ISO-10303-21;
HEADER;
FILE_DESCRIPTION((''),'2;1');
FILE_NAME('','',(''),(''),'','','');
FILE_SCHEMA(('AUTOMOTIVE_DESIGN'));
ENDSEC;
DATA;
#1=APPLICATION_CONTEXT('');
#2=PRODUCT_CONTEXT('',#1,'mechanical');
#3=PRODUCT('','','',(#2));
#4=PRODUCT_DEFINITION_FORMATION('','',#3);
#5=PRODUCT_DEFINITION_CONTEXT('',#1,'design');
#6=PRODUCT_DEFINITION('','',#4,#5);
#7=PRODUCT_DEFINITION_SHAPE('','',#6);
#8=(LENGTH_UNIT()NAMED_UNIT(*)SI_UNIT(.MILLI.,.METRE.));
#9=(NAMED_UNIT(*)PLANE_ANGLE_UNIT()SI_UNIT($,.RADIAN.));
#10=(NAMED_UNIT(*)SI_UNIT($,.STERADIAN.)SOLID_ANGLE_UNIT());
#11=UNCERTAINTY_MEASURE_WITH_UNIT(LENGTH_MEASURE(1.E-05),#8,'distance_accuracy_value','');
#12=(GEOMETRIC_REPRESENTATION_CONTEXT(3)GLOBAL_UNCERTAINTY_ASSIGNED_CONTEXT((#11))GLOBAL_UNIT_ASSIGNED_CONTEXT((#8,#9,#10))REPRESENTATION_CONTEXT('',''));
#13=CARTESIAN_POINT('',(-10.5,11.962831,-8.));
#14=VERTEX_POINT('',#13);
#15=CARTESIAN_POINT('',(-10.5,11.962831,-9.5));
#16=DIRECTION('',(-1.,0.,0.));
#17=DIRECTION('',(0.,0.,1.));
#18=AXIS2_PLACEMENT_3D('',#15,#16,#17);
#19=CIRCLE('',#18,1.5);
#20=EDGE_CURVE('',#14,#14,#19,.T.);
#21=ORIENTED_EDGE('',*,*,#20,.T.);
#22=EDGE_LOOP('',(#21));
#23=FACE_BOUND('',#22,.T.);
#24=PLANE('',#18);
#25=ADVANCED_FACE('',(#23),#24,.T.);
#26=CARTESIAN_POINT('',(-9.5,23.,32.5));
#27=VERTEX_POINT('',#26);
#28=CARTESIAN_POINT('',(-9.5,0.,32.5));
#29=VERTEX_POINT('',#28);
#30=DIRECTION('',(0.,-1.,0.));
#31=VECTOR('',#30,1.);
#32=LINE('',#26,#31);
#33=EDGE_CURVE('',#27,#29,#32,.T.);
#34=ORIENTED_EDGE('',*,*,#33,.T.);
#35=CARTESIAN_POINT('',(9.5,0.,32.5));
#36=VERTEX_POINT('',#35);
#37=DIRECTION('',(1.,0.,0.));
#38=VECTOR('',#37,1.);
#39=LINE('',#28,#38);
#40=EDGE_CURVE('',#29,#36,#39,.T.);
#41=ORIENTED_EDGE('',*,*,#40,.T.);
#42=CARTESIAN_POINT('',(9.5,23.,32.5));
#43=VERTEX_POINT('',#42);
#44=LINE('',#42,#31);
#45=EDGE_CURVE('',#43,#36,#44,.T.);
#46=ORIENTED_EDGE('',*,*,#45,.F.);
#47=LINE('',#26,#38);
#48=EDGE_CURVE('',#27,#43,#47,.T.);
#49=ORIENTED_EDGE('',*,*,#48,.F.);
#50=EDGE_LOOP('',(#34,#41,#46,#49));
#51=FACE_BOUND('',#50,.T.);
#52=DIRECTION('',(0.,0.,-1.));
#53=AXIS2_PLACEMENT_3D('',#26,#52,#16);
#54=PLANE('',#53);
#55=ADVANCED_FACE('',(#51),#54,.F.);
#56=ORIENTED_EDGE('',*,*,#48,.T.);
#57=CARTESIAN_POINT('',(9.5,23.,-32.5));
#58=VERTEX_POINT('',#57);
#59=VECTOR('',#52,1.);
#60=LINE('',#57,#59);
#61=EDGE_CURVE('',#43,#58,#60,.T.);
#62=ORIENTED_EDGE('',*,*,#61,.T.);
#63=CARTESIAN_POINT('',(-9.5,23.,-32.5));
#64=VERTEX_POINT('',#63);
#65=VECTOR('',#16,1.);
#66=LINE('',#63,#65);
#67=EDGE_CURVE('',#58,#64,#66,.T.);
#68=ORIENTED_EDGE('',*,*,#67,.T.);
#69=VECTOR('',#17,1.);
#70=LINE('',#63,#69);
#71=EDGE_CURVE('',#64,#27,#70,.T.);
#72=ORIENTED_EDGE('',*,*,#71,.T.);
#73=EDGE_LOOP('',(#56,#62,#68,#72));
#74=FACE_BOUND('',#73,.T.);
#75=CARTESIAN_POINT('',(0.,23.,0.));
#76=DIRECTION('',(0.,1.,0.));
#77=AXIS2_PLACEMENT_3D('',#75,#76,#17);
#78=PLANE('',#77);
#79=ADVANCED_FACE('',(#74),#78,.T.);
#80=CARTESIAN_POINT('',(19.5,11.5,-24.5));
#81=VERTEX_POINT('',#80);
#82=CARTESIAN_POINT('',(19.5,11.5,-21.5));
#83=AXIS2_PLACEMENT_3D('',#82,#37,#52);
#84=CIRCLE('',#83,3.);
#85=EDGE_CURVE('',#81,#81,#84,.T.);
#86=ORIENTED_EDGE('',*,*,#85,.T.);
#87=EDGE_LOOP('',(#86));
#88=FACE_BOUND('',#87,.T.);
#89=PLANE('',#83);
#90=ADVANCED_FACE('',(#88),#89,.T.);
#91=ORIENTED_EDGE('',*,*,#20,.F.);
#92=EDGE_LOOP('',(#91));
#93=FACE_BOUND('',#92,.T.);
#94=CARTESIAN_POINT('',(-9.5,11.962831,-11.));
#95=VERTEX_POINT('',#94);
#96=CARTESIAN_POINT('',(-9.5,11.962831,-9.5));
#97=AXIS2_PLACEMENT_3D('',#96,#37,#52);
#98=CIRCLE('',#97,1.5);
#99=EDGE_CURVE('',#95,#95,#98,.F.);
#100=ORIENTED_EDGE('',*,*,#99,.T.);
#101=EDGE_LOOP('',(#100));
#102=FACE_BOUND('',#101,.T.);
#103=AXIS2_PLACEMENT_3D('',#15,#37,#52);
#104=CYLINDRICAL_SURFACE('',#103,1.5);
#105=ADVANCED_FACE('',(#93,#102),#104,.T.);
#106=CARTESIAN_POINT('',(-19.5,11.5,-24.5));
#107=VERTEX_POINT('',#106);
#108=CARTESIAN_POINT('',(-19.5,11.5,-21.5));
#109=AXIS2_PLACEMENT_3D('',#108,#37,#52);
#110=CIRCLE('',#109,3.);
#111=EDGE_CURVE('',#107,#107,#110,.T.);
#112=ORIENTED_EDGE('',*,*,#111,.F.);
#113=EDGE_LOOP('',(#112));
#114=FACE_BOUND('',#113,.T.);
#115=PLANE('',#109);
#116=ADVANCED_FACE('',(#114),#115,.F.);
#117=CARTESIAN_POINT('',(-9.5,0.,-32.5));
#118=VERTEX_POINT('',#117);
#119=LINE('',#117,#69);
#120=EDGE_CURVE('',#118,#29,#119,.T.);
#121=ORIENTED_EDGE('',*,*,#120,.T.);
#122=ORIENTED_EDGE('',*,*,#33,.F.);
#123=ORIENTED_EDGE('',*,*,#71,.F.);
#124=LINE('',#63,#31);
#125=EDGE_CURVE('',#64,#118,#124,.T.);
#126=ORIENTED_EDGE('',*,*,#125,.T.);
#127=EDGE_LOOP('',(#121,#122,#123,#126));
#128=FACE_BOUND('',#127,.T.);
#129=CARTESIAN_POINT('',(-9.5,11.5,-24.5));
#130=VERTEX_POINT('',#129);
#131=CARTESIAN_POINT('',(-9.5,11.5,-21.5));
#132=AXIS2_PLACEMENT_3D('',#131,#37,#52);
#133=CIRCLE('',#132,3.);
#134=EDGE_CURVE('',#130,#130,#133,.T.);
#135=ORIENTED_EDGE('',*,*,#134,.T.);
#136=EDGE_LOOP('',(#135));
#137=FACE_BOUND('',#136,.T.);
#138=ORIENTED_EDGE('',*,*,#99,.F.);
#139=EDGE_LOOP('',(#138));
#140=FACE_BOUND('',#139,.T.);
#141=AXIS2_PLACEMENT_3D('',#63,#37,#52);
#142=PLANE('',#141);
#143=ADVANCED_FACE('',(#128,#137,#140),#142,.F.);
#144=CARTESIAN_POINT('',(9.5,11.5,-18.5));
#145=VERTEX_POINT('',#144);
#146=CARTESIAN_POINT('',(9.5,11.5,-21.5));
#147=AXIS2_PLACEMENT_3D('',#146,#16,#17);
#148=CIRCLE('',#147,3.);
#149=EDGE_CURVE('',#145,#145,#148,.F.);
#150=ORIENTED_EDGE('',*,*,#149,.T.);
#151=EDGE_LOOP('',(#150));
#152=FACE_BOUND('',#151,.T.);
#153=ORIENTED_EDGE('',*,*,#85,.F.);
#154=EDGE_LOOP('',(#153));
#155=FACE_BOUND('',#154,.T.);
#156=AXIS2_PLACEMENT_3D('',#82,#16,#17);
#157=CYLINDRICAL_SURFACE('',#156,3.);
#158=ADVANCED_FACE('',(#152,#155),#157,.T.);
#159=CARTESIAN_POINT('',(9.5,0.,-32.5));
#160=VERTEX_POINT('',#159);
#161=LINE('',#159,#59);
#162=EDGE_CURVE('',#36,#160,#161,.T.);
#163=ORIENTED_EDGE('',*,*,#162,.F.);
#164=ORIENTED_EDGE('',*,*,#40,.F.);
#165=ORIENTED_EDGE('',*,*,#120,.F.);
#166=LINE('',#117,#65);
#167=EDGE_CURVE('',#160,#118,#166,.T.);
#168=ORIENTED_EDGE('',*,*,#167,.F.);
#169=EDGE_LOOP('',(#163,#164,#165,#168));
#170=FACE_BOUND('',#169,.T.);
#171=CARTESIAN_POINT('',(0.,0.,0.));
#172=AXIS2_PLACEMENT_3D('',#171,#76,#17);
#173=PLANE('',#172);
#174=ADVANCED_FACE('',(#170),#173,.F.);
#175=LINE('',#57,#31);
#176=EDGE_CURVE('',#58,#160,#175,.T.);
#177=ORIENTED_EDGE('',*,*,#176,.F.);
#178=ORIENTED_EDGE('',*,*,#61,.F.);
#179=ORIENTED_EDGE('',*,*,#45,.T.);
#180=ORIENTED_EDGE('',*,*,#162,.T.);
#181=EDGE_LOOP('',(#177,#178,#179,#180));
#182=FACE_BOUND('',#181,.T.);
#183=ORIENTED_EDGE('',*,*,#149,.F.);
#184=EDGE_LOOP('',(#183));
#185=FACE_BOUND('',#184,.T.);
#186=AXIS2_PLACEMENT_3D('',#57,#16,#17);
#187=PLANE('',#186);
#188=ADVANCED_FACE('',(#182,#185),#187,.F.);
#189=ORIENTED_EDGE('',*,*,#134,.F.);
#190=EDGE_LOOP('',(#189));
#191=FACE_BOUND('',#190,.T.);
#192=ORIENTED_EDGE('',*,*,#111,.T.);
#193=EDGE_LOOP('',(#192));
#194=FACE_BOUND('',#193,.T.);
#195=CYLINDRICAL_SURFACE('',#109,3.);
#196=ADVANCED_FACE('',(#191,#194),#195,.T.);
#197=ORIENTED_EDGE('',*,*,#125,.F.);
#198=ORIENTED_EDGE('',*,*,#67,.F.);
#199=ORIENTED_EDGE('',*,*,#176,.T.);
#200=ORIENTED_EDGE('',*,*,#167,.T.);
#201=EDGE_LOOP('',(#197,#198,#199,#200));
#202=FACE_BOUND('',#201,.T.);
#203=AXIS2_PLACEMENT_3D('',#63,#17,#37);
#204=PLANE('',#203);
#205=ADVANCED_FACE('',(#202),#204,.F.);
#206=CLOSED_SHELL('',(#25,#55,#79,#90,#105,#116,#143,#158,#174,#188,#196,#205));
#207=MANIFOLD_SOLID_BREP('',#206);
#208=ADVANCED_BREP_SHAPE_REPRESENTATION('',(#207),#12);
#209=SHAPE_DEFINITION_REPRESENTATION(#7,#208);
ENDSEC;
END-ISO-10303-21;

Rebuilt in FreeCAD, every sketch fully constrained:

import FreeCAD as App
import Part
import Sketcher
from FreeCAD import Vector
Q = App.Units.Quantity

doc = App.newDocument("Part")
body = doc.addObject("PartDesign::Body", "Body")

sketch1 = body.newObject("Sketcher::SketchObject", "Sketch")
sketch1.AttachmentSupport = (doc.getObject("XZ_Plane"), [""])
sketch1.MapMode = "FlatFace"
sketch1.addGeometry(Part.LineSegment(Vector(-10, -32, 0), Vector(-10, 32, 0)), False)
sketch1.addGeometry(Part.LineSegment(Vector(-10, 32, 0), Vector(10, 32, 0)), False)
sketch1.addGeometry(Part.LineSegment(Vector(10, 32, 0), Vector(10, -32, 0)), False)
sketch1.addGeometry(Part.LineSegment(Vector(10, -32, 0), Vector(-10, -32, 0)), False)
sketch1.addConstraint(Sketcher.Constraint("Coincident", 0, 2, 1, 1))
sketch1.addConstraint(Sketcher.Constraint("Coincident", 1, 2, 2, 1))
sketch1.addConstraint(Sketcher.Constraint("Coincident", 2, 2, 3, 1))
sketch1.addConstraint(Sketcher.Constraint("Coincident", 3, 2, 0, 1))
sketch1.addConstraint(Sketcher.Constraint("Vertical", 0))
sketch1.addConstraint(Sketcher.Constraint("Horizontal", 1))
sketch1.addConstraint(Sketcher.Constraint("Vertical", 2))
sketch1.addConstraint(Sketcher.Constraint("Horizontal", 3))
sketch1.addConstraint(Sketcher.Constraint("Symmetric", 0, 2, 2, 2, -1, 1))
sketch1.addConstraint(Sketcher.Constraint("DistanceX", 1, 1, 1, 2, Q("19 mm")))
sketch1.addConstraint(Sketcher.Constraint("DistanceY", 0, 1, 0, 2, Q("65 mm")))
pad1 = body.newObject("PartDesign::Pad", "Pad")
pad1.Profile = sketch1
pad1.Length = 23
pad1.Reversed = True

sketch2 = body.newObject("Sketcher::SketchObject", "Sketch001")
sketch2.AttachmentSupport = (doc.getObject("YZ_Plane"), [""])
sketch2.MapMode = "FlatFace"
sketch2.AttachmentOffset = App.Placement(Vector(0, 0, 9.5), App.Rotation())
sketch2.addGeometry(Part.Circle(Vector(11.5, -21.5, 0), Vector(0, 0, 1), 3), False)
sketch2.addConstraint(Sketcher.Constraint("Diameter", 0, Q("6 mm")))
sketch2.addConstraint(Sketcher.Constraint("DistanceX", -1, 1, 0, 3, Q("11.5 mm")))
sketch2.addConstraint(Sketcher.Constraint("DistanceY", 0, 3, -1, 1, Q("21.5 mm")))
pad2 = body.newObject("PartDesign::Pad", "Pad001")
pad2.Profile = sketch2
pad2.Length = 10

sketch3 = body.newObject("Sketcher::SketchObject", "Sketch002")
sketch3.AttachmentSupport = (doc.getObject("YZ_Plane"), [""])
sketch3.MapMode = "FlatFace"
sketch3.AttachmentOffset = App.Placement(Vector(0, 0, 19.5), App.Rotation())
sketch3.addGeometry(Part.Circle(Vector(11.5, -21.5, 0), Vector(0, 0, 1), 3), False)
sketch3.addConstraint(Sketcher.Constraint("Diameter", 0, Q("6 mm")))
sketch3.addConstraint(Sketcher.Constraint("DistanceX", -1, 1, 0, 3, Q("11.5 mm")))
sketch3.addConstraint(Sketcher.Constraint("DistanceY", 0, 3, -1, 1, Q("21.5 mm")))
pad3 = body.newObject("PartDesign::Pad", "Pad002")
pad3.Profile = sketch3
pad3.Length = 39
pad3.Reversed = True

sketch4 = body.newObject("Sketcher::SketchObject", "Sketch003")
sketch4.AttachmentSupport = (doc.getObject("YZ_Plane"), [""])
sketch4.MapMode = "FlatFace"
sketch4.AttachmentOffset = App.Placement(Vector(0, 0, -9.5), App.Rotation())
sketch4.addGeometry(Part.Circle(Vector(12, -9.5, 0), Vector(0, 0, 1), 1.5), False)
sketch4.addConstraint(Sketcher.Constraint("Diameter", 0, Q("3 mm")))
sketch4.addConstraint(Sketcher.Constraint("DistanceY", 0, 3, -1, 1, Q("9.5 mm")))
sketch4.addConstraint(Sketcher.Constraint("DistanceX", -1, 1, 0, 3, Q("11.962831 mm")))
pad4 = body.newObject("PartDesign::Pad", "Pad003")
pad4.Profile = sketch4
pad4.Length = 1
pad4.Reversed = True

doc.recompute()
